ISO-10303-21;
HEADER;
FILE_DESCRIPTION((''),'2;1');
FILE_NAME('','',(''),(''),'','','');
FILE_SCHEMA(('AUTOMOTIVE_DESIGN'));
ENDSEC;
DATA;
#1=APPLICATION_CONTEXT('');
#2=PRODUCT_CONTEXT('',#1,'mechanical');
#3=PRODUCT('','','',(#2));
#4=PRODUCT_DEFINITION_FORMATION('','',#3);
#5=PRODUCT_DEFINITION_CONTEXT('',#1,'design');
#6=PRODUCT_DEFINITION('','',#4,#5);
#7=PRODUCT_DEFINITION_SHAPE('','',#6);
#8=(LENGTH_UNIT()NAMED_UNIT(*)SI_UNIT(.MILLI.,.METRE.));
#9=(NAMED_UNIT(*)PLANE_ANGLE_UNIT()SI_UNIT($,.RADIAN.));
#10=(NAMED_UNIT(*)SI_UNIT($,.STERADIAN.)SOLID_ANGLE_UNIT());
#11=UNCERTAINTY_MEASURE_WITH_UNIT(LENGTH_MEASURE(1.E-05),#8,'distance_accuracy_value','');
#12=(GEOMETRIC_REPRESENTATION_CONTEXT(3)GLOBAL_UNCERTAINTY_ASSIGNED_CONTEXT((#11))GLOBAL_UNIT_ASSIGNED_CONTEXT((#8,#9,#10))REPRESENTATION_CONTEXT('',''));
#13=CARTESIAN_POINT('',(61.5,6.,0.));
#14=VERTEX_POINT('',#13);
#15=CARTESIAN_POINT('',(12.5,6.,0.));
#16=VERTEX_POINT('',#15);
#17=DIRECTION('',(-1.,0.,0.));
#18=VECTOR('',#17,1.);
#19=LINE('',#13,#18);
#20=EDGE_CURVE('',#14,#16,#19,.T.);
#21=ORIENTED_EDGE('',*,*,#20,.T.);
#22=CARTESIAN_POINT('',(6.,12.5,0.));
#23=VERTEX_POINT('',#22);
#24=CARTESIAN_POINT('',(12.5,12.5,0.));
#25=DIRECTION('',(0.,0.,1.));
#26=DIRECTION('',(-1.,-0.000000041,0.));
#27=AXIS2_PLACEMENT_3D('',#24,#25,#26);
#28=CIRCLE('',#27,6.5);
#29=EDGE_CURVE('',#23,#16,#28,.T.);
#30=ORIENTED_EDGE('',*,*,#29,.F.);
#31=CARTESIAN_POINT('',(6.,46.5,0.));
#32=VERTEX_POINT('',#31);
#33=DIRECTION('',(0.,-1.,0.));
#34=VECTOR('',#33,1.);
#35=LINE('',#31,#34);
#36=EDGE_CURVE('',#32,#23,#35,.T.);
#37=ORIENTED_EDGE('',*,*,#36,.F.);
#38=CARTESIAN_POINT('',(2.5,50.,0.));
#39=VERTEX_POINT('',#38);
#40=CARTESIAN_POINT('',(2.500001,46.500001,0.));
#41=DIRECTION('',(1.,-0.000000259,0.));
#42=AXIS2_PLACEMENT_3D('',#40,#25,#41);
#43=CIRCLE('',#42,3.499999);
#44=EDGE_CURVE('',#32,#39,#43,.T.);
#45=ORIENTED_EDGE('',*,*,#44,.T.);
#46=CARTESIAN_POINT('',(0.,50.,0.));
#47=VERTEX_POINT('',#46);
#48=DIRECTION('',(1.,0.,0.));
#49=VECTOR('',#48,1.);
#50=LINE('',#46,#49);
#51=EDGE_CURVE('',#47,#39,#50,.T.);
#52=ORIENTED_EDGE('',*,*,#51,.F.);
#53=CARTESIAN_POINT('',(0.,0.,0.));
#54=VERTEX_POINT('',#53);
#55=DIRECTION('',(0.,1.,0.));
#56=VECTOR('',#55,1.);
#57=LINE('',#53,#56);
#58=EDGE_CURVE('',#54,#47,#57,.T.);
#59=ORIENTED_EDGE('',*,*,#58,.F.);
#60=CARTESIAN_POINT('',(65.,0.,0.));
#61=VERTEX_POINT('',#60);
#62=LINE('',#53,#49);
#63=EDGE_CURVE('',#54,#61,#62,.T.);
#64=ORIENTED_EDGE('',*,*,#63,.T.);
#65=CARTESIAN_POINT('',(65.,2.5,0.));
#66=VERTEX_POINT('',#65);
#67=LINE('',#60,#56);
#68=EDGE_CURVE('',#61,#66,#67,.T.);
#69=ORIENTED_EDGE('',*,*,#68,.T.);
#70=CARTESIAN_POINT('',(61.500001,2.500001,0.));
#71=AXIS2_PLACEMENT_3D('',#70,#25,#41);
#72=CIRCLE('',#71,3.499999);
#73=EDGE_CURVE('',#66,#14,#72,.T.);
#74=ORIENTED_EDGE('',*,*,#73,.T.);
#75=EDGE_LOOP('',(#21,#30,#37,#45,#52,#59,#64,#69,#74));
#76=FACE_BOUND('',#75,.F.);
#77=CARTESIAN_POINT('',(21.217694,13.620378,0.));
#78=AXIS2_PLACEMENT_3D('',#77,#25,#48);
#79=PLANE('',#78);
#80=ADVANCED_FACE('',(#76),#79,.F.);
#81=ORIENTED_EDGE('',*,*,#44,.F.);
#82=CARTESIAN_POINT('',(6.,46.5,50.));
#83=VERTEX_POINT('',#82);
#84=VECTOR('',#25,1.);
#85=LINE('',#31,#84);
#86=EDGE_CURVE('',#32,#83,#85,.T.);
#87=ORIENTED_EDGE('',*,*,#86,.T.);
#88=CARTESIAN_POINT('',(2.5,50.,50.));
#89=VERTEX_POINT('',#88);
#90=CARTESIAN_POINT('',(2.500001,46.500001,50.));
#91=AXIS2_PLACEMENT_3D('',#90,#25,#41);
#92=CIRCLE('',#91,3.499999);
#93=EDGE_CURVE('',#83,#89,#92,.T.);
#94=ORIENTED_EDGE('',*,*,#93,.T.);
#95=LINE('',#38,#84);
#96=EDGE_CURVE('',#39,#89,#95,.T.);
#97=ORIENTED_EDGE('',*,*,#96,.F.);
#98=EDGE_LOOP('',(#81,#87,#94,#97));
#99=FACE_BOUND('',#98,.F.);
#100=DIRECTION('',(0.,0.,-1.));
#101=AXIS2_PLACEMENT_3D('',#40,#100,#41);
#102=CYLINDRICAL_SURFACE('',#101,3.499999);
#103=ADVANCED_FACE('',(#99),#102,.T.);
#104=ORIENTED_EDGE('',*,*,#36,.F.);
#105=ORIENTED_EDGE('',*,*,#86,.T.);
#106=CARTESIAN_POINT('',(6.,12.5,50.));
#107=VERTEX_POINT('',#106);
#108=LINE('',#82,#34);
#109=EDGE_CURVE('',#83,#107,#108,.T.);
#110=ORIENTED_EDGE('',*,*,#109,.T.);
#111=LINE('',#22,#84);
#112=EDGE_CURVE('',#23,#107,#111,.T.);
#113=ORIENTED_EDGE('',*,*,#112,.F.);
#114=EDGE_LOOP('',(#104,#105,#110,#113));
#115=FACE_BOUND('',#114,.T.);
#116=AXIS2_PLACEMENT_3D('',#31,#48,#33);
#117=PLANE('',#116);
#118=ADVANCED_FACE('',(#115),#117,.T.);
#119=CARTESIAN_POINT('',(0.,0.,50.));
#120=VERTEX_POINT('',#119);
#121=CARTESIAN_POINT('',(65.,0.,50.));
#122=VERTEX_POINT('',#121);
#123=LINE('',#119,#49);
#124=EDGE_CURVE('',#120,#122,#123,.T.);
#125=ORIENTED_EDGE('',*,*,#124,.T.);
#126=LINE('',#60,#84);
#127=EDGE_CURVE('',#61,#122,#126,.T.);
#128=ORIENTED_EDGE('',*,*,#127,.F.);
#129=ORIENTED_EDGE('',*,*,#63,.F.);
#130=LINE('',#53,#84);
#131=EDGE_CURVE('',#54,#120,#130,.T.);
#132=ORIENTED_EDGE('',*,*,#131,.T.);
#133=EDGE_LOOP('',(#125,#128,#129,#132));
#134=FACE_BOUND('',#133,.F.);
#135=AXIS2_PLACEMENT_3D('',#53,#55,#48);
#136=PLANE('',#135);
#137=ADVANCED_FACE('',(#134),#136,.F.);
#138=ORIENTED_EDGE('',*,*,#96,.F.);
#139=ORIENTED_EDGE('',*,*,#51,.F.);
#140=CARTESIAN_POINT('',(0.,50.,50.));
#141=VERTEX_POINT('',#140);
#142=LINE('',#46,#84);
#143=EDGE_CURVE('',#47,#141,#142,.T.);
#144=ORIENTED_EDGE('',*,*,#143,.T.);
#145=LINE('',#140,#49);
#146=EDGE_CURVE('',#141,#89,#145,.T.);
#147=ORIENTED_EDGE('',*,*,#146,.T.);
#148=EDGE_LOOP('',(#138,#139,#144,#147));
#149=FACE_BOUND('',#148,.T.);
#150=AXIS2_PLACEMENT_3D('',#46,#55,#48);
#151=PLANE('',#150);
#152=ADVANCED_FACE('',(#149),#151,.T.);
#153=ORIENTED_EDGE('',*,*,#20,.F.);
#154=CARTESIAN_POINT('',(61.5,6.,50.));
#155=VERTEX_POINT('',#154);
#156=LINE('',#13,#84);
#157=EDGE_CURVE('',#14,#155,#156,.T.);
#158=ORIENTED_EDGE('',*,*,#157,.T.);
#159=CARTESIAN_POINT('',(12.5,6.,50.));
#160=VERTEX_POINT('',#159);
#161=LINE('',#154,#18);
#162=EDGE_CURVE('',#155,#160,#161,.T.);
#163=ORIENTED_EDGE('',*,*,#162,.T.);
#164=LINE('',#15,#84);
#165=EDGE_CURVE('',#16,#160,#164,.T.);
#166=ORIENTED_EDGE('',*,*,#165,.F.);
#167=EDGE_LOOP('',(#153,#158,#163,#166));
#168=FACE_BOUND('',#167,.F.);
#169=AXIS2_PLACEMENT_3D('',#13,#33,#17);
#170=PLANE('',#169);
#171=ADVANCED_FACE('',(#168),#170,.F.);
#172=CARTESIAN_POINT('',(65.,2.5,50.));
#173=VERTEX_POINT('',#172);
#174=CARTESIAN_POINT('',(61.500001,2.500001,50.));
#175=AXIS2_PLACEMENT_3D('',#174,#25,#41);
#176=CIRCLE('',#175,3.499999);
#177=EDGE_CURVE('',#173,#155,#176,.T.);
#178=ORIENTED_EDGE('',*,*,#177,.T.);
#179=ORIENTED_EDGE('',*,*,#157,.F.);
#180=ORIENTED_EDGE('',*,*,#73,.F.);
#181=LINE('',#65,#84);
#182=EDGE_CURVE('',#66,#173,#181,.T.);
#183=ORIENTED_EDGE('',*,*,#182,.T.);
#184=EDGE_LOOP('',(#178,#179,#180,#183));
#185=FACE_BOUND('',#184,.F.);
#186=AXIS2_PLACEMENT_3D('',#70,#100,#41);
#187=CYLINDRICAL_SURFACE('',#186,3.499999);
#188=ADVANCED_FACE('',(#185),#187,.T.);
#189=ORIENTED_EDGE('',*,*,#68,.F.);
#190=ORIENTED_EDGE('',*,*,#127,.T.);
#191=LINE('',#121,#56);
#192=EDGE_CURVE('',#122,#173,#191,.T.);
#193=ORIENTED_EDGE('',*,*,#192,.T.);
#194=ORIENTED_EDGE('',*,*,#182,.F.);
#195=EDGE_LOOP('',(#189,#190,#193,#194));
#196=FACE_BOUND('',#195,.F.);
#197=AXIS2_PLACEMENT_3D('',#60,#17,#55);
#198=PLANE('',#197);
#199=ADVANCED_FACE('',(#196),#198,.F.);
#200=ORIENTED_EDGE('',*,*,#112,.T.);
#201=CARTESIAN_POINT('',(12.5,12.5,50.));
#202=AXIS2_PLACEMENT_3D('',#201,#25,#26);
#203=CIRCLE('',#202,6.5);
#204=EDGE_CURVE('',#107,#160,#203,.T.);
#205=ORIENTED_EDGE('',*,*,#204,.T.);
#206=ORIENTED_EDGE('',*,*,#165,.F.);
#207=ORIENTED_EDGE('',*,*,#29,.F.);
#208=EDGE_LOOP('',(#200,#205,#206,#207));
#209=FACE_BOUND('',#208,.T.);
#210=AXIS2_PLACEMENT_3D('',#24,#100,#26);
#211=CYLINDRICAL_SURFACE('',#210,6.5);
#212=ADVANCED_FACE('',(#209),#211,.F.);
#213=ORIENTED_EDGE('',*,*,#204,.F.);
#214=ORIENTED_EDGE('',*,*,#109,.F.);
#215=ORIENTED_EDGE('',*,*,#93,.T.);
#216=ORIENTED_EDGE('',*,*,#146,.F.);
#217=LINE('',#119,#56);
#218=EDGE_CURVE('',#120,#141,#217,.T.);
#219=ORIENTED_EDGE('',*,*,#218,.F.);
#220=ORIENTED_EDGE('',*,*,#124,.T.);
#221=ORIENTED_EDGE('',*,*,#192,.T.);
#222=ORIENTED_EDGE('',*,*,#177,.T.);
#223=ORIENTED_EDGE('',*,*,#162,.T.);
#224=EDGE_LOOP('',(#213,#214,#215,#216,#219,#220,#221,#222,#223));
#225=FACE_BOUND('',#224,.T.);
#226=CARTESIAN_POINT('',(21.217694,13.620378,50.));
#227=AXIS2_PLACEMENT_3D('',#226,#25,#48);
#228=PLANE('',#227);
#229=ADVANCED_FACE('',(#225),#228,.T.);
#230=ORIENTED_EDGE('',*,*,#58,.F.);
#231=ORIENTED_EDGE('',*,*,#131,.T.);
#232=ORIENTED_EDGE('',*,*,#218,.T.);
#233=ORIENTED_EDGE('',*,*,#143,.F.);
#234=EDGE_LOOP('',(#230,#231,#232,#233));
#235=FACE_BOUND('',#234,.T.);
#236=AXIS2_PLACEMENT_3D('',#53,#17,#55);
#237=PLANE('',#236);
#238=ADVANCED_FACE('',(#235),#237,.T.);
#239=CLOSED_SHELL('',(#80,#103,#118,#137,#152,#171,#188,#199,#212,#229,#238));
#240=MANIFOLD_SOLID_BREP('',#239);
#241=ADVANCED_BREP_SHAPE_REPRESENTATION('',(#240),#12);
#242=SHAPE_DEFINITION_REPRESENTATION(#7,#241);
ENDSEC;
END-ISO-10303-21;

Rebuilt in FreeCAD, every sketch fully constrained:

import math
import FreeCAD as App
import Part
import Sketcher
Q = App.Units.Quantity

doc = App.newDocument("Part")
body = doc.addObject("PartDesign::Body", "Body")

# Sketch on XY plane
sketch1 = body.newObject("Sketcher::SketchObject", "Sketch")
sketch1.AttachmentSupport = (doc.getObject("XY_Plane"), [""])
sketch1.MapMode = "FlatFace"
sketch1.addGeometry(Part.LineSegment(App.Vector(0, 0, 0), App.Vector(65, 0, 0)), False)
sketch1.addGeometry(Part.LineSegment(App.Vector(65, 0, 0), App.Vector(65, 2.5, 0)), False)
sketch1.addGeometry(Part.ArcOfCircle(Part.Circle(App.Vector(61.500001, 2.500001, 0), App.Vector(0, 0, 1), 3.499999), math.radians(-0.000015), math.radians(90.000015)), False)
sketch1.addGeometry(Part.LineSegment(App.Vector(61.5, 6, 0), App.Vector(12.5, 6, 0)), False)
sketch1.addGeometry(Part.ArcOfCircle(Part.Circle(App.Vector(12.5, 12.5, 0), App.Vector(0, 0, 1), 6.5), math.radians(-179.999998), math.radians(-90.000002)), False)
sketch1.addGeometry(Part.LineSegment(App.Vector(6, 12.5, 0), App.Vector(6, 46.5, 0)), False)
sketch1.addGeometry(Part.ArcOfCircle(Part.Circle(App.Vector(2.500001, 46.500001, 0), App.Vector(0, 0, 1), 3.499999), math.radians(-0.000015), math.radians(90.000015)), False)
sketch1.addGeometry(Part.LineSegment(App.Vector(2.5, 50, 0), App.Vector(0, 50, 0)), False)
sketch1.addGeometry(Part.LineSegment(App.Vector(0, 50, 0), App.Vector(0, 0, 0)), False)
sketch1.addConstraint(Sketcher.Constraint("Coincident", 0, 2, 1, 1))
sketch1.addConstraint(Sketcher.Constraint("Tangent", 1, 2, 2, 1))
sketch1.addConstraint(Sketcher.Constraint("Tangent", 2, 2, 3, 1))
sketch1.addConstraint(Sketcher.Constraint("Tangent", 3, 2, 4, 2))
sketch1.addConstraint(Sketcher.Constraint("Tangent", 4, 1, 5, 1))
sketch1.addConstraint(Sketcher.Constraint("Tangent", 5, 2, 6, 1))
sketch1.addConstraint(Sketcher.Constraint("Tangent", 6, 2, 7, 1))
sketch1.addConstraint(Sketcher.Constraint("Coincident", 7, 2, 8, 1))
sketch1.addConstraint(Sketcher.Constraint("Coincident", 8, 2, 0, 1))
sketch1.addConstraint(Sketcher.Constraint("Horizontal", 0))
sketch1.addConstraint(Sketcher.Constraint("Vertical", 1))
sketch1.addConstraint(Sketcher.Constraint("Horizontal", 3))
sketch1.addConstraint(Sketcher.Constraint("Vertical", 5))
sketch1.addConstraint(Sketcher.Constraint("Horizontal", 7))
sketch1.addConstraint(Sketcher.Constraint("Vertical", 8))
sketch1.addConstraint(Sketcher.Constraint("Coincident", 8, 2, -1, 1))
sketch1.addConstraint(Sketcher.Constraint("Equal", 2, 6))
sketch1.addConstraint(Sketcher.Constraint("Equal", 7, 1))
sketch1.addConstraint(Sketcher.Constraint("Radius", 2, Q("3.499999 mm")))
sketch1.addConstraint(Sketcher.Constraint("Radius", 4, Q("6.5 mm")))
sketch1.addConstraint(Sketcher.Constraint("DistanceX", 0, 1, 0, 2, Q("65 mm")))
sketch1.addConstraint(Sketcher.Constraint("DistanceX", 3, 2, 3, 1, Q("49 mm")))
sketch1.addConstraint(Sketcher.Constraint("DistanceY", 5, 1, 5, 2, Q("34 mm")))
pad1 = body.newObject("PartDesign::Pad", "Pad")
pad1.Profile = sketch1
pad1.Length = 50

doc.recompute()
